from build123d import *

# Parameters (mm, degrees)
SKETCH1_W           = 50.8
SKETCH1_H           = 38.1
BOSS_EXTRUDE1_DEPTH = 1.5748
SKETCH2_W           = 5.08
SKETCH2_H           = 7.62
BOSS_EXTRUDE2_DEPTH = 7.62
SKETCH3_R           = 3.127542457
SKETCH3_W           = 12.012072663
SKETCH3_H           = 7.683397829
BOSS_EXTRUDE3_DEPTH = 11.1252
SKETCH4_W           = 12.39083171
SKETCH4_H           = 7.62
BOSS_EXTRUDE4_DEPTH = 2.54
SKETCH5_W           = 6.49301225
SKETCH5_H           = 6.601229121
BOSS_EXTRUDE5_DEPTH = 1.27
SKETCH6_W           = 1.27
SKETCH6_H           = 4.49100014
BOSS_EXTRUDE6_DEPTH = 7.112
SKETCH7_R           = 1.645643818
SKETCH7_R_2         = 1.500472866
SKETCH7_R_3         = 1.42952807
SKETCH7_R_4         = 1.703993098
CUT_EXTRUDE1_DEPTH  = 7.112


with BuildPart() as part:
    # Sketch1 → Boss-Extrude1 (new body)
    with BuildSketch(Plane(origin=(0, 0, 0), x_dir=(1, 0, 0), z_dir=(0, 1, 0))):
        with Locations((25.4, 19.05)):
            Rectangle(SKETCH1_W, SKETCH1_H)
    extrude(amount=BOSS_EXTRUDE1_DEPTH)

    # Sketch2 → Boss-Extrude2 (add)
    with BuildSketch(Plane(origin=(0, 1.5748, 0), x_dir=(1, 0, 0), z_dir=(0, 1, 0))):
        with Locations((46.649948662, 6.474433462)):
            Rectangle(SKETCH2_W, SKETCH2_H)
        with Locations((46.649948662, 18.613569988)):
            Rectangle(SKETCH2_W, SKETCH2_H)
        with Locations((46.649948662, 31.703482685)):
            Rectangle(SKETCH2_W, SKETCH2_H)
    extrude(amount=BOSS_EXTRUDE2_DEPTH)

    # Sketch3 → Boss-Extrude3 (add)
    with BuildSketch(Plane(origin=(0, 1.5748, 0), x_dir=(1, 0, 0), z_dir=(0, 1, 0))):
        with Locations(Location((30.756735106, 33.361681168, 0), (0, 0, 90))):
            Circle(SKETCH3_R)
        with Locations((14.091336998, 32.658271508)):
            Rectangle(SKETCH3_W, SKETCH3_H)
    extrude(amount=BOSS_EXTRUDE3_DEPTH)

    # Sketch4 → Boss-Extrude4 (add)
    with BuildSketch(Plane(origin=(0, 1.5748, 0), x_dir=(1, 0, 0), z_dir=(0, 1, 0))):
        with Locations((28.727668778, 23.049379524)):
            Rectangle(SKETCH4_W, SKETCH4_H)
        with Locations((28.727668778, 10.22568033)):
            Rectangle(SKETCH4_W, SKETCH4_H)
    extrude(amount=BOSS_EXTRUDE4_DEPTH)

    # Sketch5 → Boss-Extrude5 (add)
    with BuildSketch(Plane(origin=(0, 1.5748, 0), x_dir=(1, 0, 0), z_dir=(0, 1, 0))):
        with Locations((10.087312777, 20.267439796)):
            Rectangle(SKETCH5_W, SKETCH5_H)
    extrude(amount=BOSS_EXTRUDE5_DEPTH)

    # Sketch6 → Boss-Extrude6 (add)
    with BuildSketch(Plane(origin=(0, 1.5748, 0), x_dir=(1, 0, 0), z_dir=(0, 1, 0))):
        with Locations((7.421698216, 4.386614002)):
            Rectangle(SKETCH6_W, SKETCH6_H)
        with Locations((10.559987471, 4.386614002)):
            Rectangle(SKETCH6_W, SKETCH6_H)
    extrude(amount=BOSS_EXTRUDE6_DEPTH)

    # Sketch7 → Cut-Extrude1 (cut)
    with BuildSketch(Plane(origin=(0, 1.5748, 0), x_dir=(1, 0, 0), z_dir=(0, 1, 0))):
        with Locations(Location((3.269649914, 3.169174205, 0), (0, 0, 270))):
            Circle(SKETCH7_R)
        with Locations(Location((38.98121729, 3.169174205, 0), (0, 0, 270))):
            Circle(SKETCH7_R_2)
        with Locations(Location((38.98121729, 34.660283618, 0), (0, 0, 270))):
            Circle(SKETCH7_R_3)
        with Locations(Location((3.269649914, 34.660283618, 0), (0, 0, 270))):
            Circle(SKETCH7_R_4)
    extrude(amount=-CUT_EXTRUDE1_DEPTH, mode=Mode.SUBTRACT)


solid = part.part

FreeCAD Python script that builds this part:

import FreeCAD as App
import Part
import Sketcher
Q = App.Units.Quantity

doc = App.newDocument("Part")
body = doc.addObject("PartDesign::Body", "Body")

sketch1 = doc.addObject("Sketcher::SketchObject", "Sketch")
body.addObject(sketch1)
sketch1.AttachmentSupport = (doc.XZ_Plane, [""])
sketch1.MapMode = "FlatFace"
sketch1.addGeometry(Part.LineSegment(App.Vector(0, -38.1, 0), App.Vector(0, 0, 0)), False)
sketch1.addGeometry(Part.LineSegment(App.Vector(0, 0, 0), App.Vector(50.8, 0, 0)), False)
sketch1.addGeometry(Part.LineSegment(App.Vector(50.8, 0, 0), App.Vector(50.8, -38.1, 0)), False)
sketch1.addGeometry(Part.LineSegment(App.Vector(50.8, -38.1, 0), App.Vector(0, -38.1, 0)), False)
sketch1.addConstraint(Sketcher.Constraint("Coincident", 0, 2, 1, 1))
sketch1.addConstraint(Sketcher.Constraint("Coincident", 1, 2, 2, 1))
sketch1.addConstraint(Sketcher.Constraint("Coincident", 2, 2, 3, 1))
sketch1.addConstraint(Sketcher.Constraint("Coincident", 3, 2, 0, 1))
sketch1.addConstraint(Sketcher.Constraint("Vertical", 0))
sketch1.addConstraint(Sketcher.Constraint("Horizontal", 1))
sketch1.addConstraint(Sketcher.Constraint("Vertical", 2))
sketch1.addConstraint(Sketcher.Constraint("Horizontal", 3))
sketch1.addConstraint(Sketcher.Constraint("Coincident", 0, 2, -1, 1))
sketch1.addConstraint(Sketcher.Constraint("DistanceX", 1, 1, 1, 2, Q("2 in")))
sketch1.addConstraint(Sketcher.Constraint("DistanceY", 0, 1, 0, 2, Q("1.5 in")))
pad1 = doc.addObject("PartDesign::Pad", "Pad")
body.addObject(pad1)
pad1.Profile = sketch1
pad1.Length = Q("0.062 in")
pad1.Reversed = True

sketch2 = doc.addObject("Sketcher::SketchObject", "Sketch001")
body.addObject(sketch2)
sketch2.AttachmentSupport = (doc.XZ_Plane, [""])
sketch2.MapMode = "FlatFace"
sketch2.AttachmentOffset = App.Placement(App.Vector(0, 0, -0.062 * 25.4), App.Rotation())
sketch2.addGeometry(Part.LineSegment(App.Vector(44.109949, -10.284433, 0), App.Vector(44.109949, -2.664433, 0)), False)
sketch2.addGeometry(Part.LineSegment(App.Vector(44.109949, -2.664433, 0), App.Vector(49.189949, -2.664433, 0)), False)
sketch2.addGeometry(Part.LineSegment(App.Vector(49.189949, -2.664433, 0), App.Vector(49.189949, -10.284433, 0)), False)
sketch2.addGeometry(Part.LineSegment(App.Vector(49.189949, -10.284433, 0), App.Vector(44.109949, -10.284433, 0)), False)
sketch2.addGeometry(Part.LineSegment(App.Vector(44.109949, -22.42357, 0), App.Vector(44.109949, -14.80357, 0)), False)
sketch2.addGeometry(Part.LineSegment(App.Vector(44.109949, -14.80357, 0), App.Vector(49.189949, -14.80357, 0)), False)
sketch2.addGeometry(Part.LineSegment(App.Vector(49.189949, -14.80357, 0), App.Vector(49.189949, -22.42357, 0)), False)
sketch2.addGeometry(Part.LineSegment(App.Vector(49.189949, -22.42357, 0), App.Vector(44.109949, -22.42357, 0)), False)
sketch2.addGeometry(Part.LineSegment(App.Vector(44.109949, -35.513483, 0), App.Vector(44.109949, -27.893483, 0)), False)
sketch2.addGeometry(Part.LineSegment(App.Vector(44.109949, -27.893483, 0), App.Vector(49.189949, -27.893483, 0)), False)
sketch2.addGeometry(Part.LineSegment(App.Vector(49.189949, -27.893483, 0), App.Vector(49.189949, -35.513483, 0)), False)
sketch2.addGeometry(Part.LineSegment(App.Vector(49.189949, -35.513483, 0), App.Vector(44.109949, -35.513483, 0)), False)
sketch2.addConstraint(Sketcher.Constraint("Coincident", 0, 2, 1, 1))
sketch2.addConstraint(Sketcher.Constraint("Coincident", 1, 2, 2, 1))
sketch2.addConstraint(Sketcher.Constraint("Coincident", 2, 2, 3, 1))
sketch2.addConstraint(Sketcher.Constraint("Coincident", 3, 2, 0, 1))
sketch2.addConstraint(Sketcher.Constraint("Coincident", 4, 2, 5, 1))
sketch2.addConstraint(Sketcher.Constraint("Coincident", 5, 2, 6, 1))
sketch2.addConstraint(Sketcher.Constraint("Coincident", 6, 2, 7, 1))
sketch2.addConstraint(Sketcher.Constraint("Coincident", 7, 2, 4, 1))
sketch2.addConstraint(Sketcher.Constraint("Coincident", 8, 2, 9, 1))
sketch2.addConstraint(Sketcher.Constraint("Coincident", 9, 2, 10, 1))
sketch2.addConstraint(Sketcher.Constraint("Coincident", 10, 2, 11, 1))
sketch2.addConstraint(Sketcher.Constraint("Coincident", 11, 2, 8, 1))
sketch2.addConstraint(Sketcher.Constraint("Vertical", 0))
sketch2.addConstraint(Sketcher.Constraint("Horizontal", 1))
sketch2.addConstraint(Sketcher.Constraint("Vertical", 2))
sketch2.addConstraint(Sketcher.Constraint("Horizontal", 3))
sketch2.addConstraint(Sketcher.Constraint("Vertical", 4))
sketch2.addConstraint(Sketcher.Constraint("Horizontal", 5))
sketch2.addConstraint(Sketcher.Constraint("Vertical", 6))
sketch2.addConstraint(Sketcher.Constraint("Horizontal", 7))
sketch2.addConstraint(Sketcher.Constraint("Vertical", 8))
sketch2.addConstraint(Sketcher.Constraint("Horizontal", 9))
sketch2.addConstraint(Sketcher.Constraint("Vertical", 10))
sketch2.addConstraint(Sketcher.Constraint("Horizontal", 11))
sketch2.addConstraint(Sketcher.Constraint("Vertical", 3, 2, 4, 2))
sketch2.addConstraint(Sketcher.Constraint("Vertical", 2, 2, 5, 2))
sketch2.addConstraint(Sketcher.Constraint("Vertical", 7, 2, 8, 2))
sketch2.addConstraint(Sketcher.Constraint("Vertical", 6, 2, 9, 2))
sketch2.addConstraint(Sketcher.Constraint("Equal", 2, 4))
sketch2.addConstraint(Sketcher.Constraint("Equal", 6, 8))
sketch2.addConstraint(Sketcher.Constraint("DistanceX", 1, 1, 1, 2, Q("0.2 in")))
sketch2.addConstraint(Sketcher.Constraint("DistanceY", 0, 1, 0, 2, Q("0.3 in")))
sketch2.addConstraint(Sketcher.Constraint("DistanceX", -1, 1, 0, 2, 44.109949))
sketch2.addConstraint(Sketcher.Constraint("DistanceY", 4, 2, -1, 1, 14.80357))
sketch2.addConstraint(Sketcher.Constraint("DistanceY", 8, 2, 3, 2, 17.609049))
sketch2.addConstraint(Sketcher.Constraint("DistanceY", 0, 2, -1, 1, 2.664433))
pad2 = doc.addObject("PartDesign::Pad", "Pad001")
body.addObject(pad2)
pad2.Profile = sketch2
pad2.Length = Q("0.3 in")
pad2.Reversed = True

sketch3 = doc.addObject("Sketcher::SketchObject", "Sketch002")
body.addObject(sketch3)
sketch3.AttachmentSupport = (doc.XZ_Plane, [""])
sketch3.MapMode = "FlatFace"
sketch3.AttachmentOffset = App.Placement(App.Vector(0, 0, -0.062 * 25.4), App.Rotation())
sketch3.addGeometry(Part.Circle(App.Vector(30.756735, -33.361681, 0), App.Vector(0, 0, 1), 3.127542), False)
sketch3.addGeometry(Part.LineSegment(App.Vector(8.085301, -36.49997, 0), App.Vector(8.085301, -28.816573, 0)), False)
sketch3.addGeometry(Part.LineSegment(App.Vector(8.085301, -28.816573, 0), App.Vector(20.097373, -28.816573, 0)), False)
sketch3.addGeometry(Part.LineSegment(App.Vector(20.097373, -28.816573, 0), App.Vector(20.097373, -36.49997, 0)), False)
sketch3.addGeometry(Part.LineSegment(App.Vector(20.097373, -36.49997, 0), App.Vector(8.085301, -36.49997, 0)), False)
sketch3.addConstraint(Sketcher.Constraint("Coincident", 1, 2, 2, 1))
sketch3.addConstraint(Sketcher.Constraint("Coincident", 2, 2, 3, 1))
sketch3.addConstraint(Sketcher.Constraint("Coincident", 3, 2, 4, 1))
sketch3.addConstraint(Sketcher.Constraint("Coincident", 4, 2, 1, 1))
sketch3.addConstraint(Sketcher.Constraint("Vertical", 1))
sketch3.addConstraint(Sketcher.Constraint("Horizontal", 2))
sketch3.addConstraint(Sketcher.Constraint("Vertical", 3))
sketch3.addConstraint(Sketcher.Constraint("Horizontal", 4))
sketch3.addConstraint(Sketcher.Constraint("Diameter", 0, 6.255085))
sketch3.addConstraint(Sketcher.Constraint("DistanceX", -1, 1, 1, 2, 8.085301))
sketch3.addConstraint(Sketcher.Constraint("DistanceX", 2, 1, 2, 2, 12.012073))
sketch3.addConstraint(Sketcher.Constraint("DistanceY", 1, 1, 1, 2, 7.683398))
sketch3.addConstraint(Sketcher.Constraint("DistanceY", 0, 3, -1, 1, 33.361681))
sketch3.addConstraint(Sketcher.Constraint("DistanceY", 3, 2, -1, 1, 36.49997))
sketch3.addConstraint(Sketcher.Constraint("DistanceX", 2, 2, 0, 3, 10.659362))
pad3 = doc.addObject("PartDesign::Pad", "Pad002")
body.addObject(pad3)
pad3.Profile = sketch3
pad3.Length = Q("0.438 in")
pad3.Reversed = True

sketch4 = doc.addObject("Sketcher::SketchObject", "Sketch003")
body.addObject(sketch4)
sketch4.AttachmentSupport = (doc.XZ_Plane, [""])
sketch4.MapMode = "FlatFace"
sketch4.AttachmentOffset = App.Placement(App.Vector(0, 0, -0.062 * 25.4), App.Rotation())
sketch4.addGeometry(Part.LineSegment(App.Vector(22.532253, -26.85938, 0), App.Vector(22.532253, -19.23938, 0)), False)
sketch4.addGeometry(Part.LineSegment(App.Vector(22.532253, -19.23938, 0), App.Vector(34.923085, -19.23938, 0)), False)
sketch4.addGeometry(Part.LineSegment(App.Vector(34.923085, -19.23938, 0), App.Vector(34.923085, -26.85938, 0)), False)
sketch4.addGeometry(Part.LineSegment(App.Vector(34.923085, -26.85938, 0), App.Vector(22.532253, -26.85938, 0)), False)
sketch4.addGeometry(Part.LineSegment(App.Vector(22.532253, -14.03568, 0), App.Vector(22.532253, -6.41568, 0)), False)
sketch4.addGeometry(Part.LineSegment(App.Vector(22.532253, -6.41568, 0), App.Vector(34.923085, -6.41568, 0)), False)
sketch4.addGeometry(Part.LineSegment(App.Vector(34.923085, -6.41568, 0), App.Vector(34.923085, -14.03568, 0)), False)
sketch4.addGeometry(Part.LineSegment(App.Vector(34.923085, -14.03568, 0), App.Vector(22.532253, -14.03568, 0)), False)
sketch4.addConstraint(Sketcher.Constraint("Coincident", 0, 2, 1, 1))
sketch4.addConstraint(Sketcher.Constraint("Coincident", 1, 2, 2, 1))
sketch4.addConstraint(Sketcher.Constraint("Coincident", 2, 2, 3, 1))
sketch4.addConstraint(Sketcher.Constraint("Coincident", 3, 2, 0, 1))
sketch4.addConstraint(Sketcher.Constraint("Coincident", 4, 2, 5, 1))
sketch4.addConstraint(Sketcher.Constraint("Coincident", 5, 2, 6, 1))
sketch4.addConstraint(Sketcher.Constraint("Coincident", 6, 2, 7, 1))
sketch4.addConstraint(Sketcher.Constraint("Coincident", 7, 2, 4, 1))
sketch4.addConstraint(Sketcher.Constraint("Vertical", 0))
sketch4.addConstraint(Sketcher.Constraint("Horizontal", 1))
sketch4.addConstraint(Sketcher.Constraint("Vertical", 2))
sketch4.addConstraint(Sketcher.Constraint("Horizontal", 3))
sketch4.addConstraint(Sketcher.Constraint("Vertical", 4))
sketch4.addConstraint(Sketcher.Constraint("Horizontal", 5))
sketch4.addConstraint(Sketcher.Constraint("Vertical", 6))
sketch4.addConstraint(Sketcher.Constraint("Horizontal", 7))
sketch4.addConstraint(Sketcher.Constraint("Vertical", 3, 2, 4, 2))
sketch4.addConstraint(Sketcher.Constraint("Vertical", 2, 2, 5, 2))
sketch4.addConstraint(Sketcher.Constraint("Equal", 2, 4))
sketch4.addConstraint(Sketcher.Constraint("DistanceY", 0, 1, 0, 2, Q("0.3 in")))
sketch4.addConstraint(Sketcher.Constraint("DistanceX", 1, 1, 1, 2, 12.390832))
sketch4.addConstraint(Sketcher.Constraint("DistanceY", 0, 2, 4, 2, 12.823699))
sketch4.addConstraint(Sketcher.Constraint("DistanceY", 0, 2, -1, 1, 19.23938))
sketch4.addConstraint(Sketcher.Constraint("DistanceX", -1, 1, 0, 2, 22.532253))
pad4 = doc.addObject("PartDesign::Pad", "Pad003")
body.addObject(pad4)
pad4.Profile = sketch4
pad4.Length = Q("0.1 in")
pad4.Reversed = True

sketch5 = doc.addObject("Sketcher::SketchObject", "Sketch004")
body.addObject(sketch5)
sketch5.AttachmentSupport = (doc.XZ_Plane, [""])
sketch5.MapMode = "FlatFace"
sketch5.AttachmentOffset = App.Placement(App.Vector(0, 0, -0.062 * 25.4), App.Rotation())
sketch5.addGeometry(Part.LineSegment(App.Vector(6.840807, -23.568054, 0), App.Vector(6.840807, -16.966825, 0)), False)
sketch5.addGeometry(Part.LineSegment(App.Vector(6.840807, -16.966825, 0), App.Vector(13.333819, -16.966825, 0)), False)
sketch5.addGeometry(Part.LineSegment(App.Vector(13.333819, -16.966825, 0), App.Vector(13.333819, -23.568054, 0)), False)
sketch5.addGeometry(Part.LineSegment(App.Vector(13.333819, -23.568054, 0), App.Vector(6.840807, -23.568054, 0)), False)
sketch5.addConstraint(Sketcher.Constraint("Coincident", 0, 2, 1, 1))
sketch5.addConstraint(Sketcher.Constraint("Coincident", 1, 2, 2, 1))
sketch5.addConstraint(Sketcher.Constraint("Coincident", 2, 2, 3, 1))
sketch5.addConstraint(Sketcher.Constraint("Coincident", 3, 2, 0, 1))
sketch5.addConstraint(Sketcher.Constraint("Vertical", 0))
sketch5.addConstraint(Sketcher.Constraint("Horizontal", 1))
sketch5.addConstraint(Sketcher.Constraint("Vertical", 2))
sketch5.addConstraint(Sketcher.Constraint("Horizontal", 3))
sketch5.addConstraint(Sketcher.Constraint("DistanceY", 0, 1, 0, 2, 6.601229))
sketch5.addConstraint(Sketcher.Constraint("DistanceX", 1, 1, 1, 2, 6.493012))
sketch5.addConstraint(Sketcher.Constraint("DistanceX", -1, 1, 1, 2, 13.333819))
sketch5.addConstraint(Sketcher.Constraint("DistanceY", 0, 2, -1, 1, 16.966825))
pad5 = doc.addObject("PartDesign::Pad", "Pad004")
body.addObject(pad5)
pad5.Profile = sketch5
pad5.Length = Q("0.05 in")
pad5.Reversed = True

sketch6 = doc.addObject("Sketcher::SketchObject", "Sketch005")
body.addObject(sketch6)
sketch6.AttachmentSupport = (doc.XZ_Plane, [""])
sketch6.MapMode = "FlatFace"
sketch6.AttachmentOffset = App.Placement(App.Vector(0, 0, -0.062 * 25.4), App.Rotation())
sketch6.addGeometry(Part.LineSegment(App.Vector(6.786698, -6.632114, 0), App.Vector(6.786698, -2.141114, 0)), False)
sketch6.addGeometry(Part.LineSegment(App.Vector(6.786698, -2.141114, 0), App.Vector(8.056698, -2.141114, 0)), False)
sketch6.addGeometry(Part.LineSegment(App.Vector(8.056698, -2.141114, 0), App.Vector(8.056698, -6.632114, 0)), False)
sketch6.addGeometry(Part.LineSegment(App.Vector(8.056698, -6.632114, 0), App.Vector(6.786698, -6.632114, 0)), False)
sketch6.addGeometry(Part.LineSegment(App.Vector(9.924987, -6.632114, 0), App.Vector(9.924987, -2.141114, 0)), False)
sketch6.addGeometry(Part.LineSegment(App.Vector(9.924987, -2.141114, 0), App.Vector(11.194987, -2.141114, 0)), False)
sketch6.addGeometry(Part.LineSegment(App.Vector(11.194987, -2.141114, 0), App.Vector(11.194987, -6.632114, 0)), False)
sketch6.addGeometry(Part.LineSegment(App.Vector(11.194987, -6.632114, 0), App.Vector(9.924987, -6.632114, 0)), False)
sketch6.addConstraint(Sketcher.Constraint("Coincident", 0, 2, 1, 1))
sketch6.addConstraint(Sketcher.Constraint("Coincident", 1, 2, 2, 1))
sketch6.addConstraint(Sketcher.Constraint("Coincident", 2, 2, 3, 1))
sketch6.addConstraint(Sketcher.Constraint("Coincident", 3, 2, 0, 1))
sketch6.addConstraint(Sketcher.Constraint("Coincident", 4, 2, 5, 1))
sketch6.addConstraint(Sketcher.Constraint("Coincident", 5, 2, 6, 1))
sketch6.addConstraint(Sketcher.Constraint("Coincident", 6, 2, 7, 1))
sketch6.addConstraint(Sketcher.Constraint("Coincident", 7, 2, 4, 1))
sketch6.addConstraint(Sketcher.Constraint("Vertical", 0))
sketch6.addConstraint(Sketcher.Constraint("Horizontal", 1))
sketch6.addConstraint(Sketcher.Constraint("Vertical", 2))
sketch6.addConstraint(Sketcher.Constraint("Horizontal", 3))
sketch6.addConstraint(Sketcher.Constraint("Vertical", 4))
sketch6.addConstraint(Sketcher.Constraint("Horizontal", 5))
sketch6.addConstraint(Sketcher.Constraint("Vertical", 6))
sketch6.addConstraint(Sketcher.Constraint("Horizontal", 7))
sketch6.addConstraint(Sketcher.Constraint("Horizontal", 1, 2, 4, 2))
sketch6.addConstraint(Sketcher.Constraint("Horizontal", 3, 2, 6, 2))
sketch6.addConstraint(Sketcher.Constraint("Equal", 3, 5))
sketch6.addConstraint(Sketcher.Constraint("DistanceX", 1, 1, 1, 2, Q("0.05 in")))
sketch6.addConstraint(Sketcher.Constraint("DistanceY", 0, 1, 0, 2, 4.491))
sketch6.addConstraint(Sketcher.Constraint("DistanceX", -1, 1, 0, 2, 6.786698))
sketch6.addConstraint(Sketcher.Constraint("DistanceX", 1, 2, 4, 2, 1.868289))
sketch6.addConstraint(Sketcher.Constraint("DistanceY", 0, 2, -1, 1, 2.141114))
pad6 = doc.addObject("PartDesign::Pad", "Pad005")
body.addObject(pad6)
pad6.Profile = sketch6
pad6.Length = Q("0.28 in")
pad6.Reversed = True

sketch7 = doc.addObject("Sketcher::SketchObject", "Sketch006")
body.addObject(sketch7)
sketch7.AttachmentSupport = (doc.XZ_Plane, [""])
sketch7.MapMode = "FlatFace"
sketch7.AttachmentOffset = App.Placement(App.Vector(0, 0, -0.062 * 25.4), App.Rotation())
sketch7.addGeometry(Part.Circle(App.Vector(3.26965, -3.169174, 0), App.Vector(0, 0, 1), 1.645644), False)
sketch7.addGeometry(Part.Circle(App.Vector(38.981217, -3.169174, 0), App.Vector(0, 0, 1), 1.500473), False)
sketch7.addGeometry(Part.Circle(App.Vector(38.981217, -34.660284, 0), App.Vector(0, 0, 1), 1.429528), False)
sketch7.addGeometry(Part.Circle(App.Vector(3.26965, -34.660284, 0), App.Vector(0, 0, 1), 1.703993), False)
sketch7.addConstraint(Sketcher.Constraint("Horizontal", 0, 3, 1, 3))
sketch7.addConstraint(Sketcher.Constraint("Horizontal", 2, 3, 3, 3))
sketch7.addConstraint(Sketcher.Constraint("Vertical", 1, 3, 2, 3))
sketch7.addConstraint(Sketcher.Constraint("Vertical", 0, 3, 3, 3))
sketch7.addConstraint(Sketcher.Constraint("Diameter", 0, 3.291288))
sketch7.addConstraint(Sketcher.Constraint("Diameter", 1, 3.000946))
sketch7.addConstraint(Sketcher.Constraint("Diameter", 2, 2.859056))
sketch7.addConstraint(Sketcher.Constraint("Diameter", 3, 3.407986))
sketch7.addConstraint(Sketcher.Constraint("DistanceX", -1, 1, 0, 3, 3.26965))
sketch7.addConstraint(Sketcher.Constraint("DistanceY", 2, 3, 1, 3, 31.491109))
sketch7.addConstraint(Sketcher.Constraint("DistanceY", 0, 3, -1, 1, 3.169174))
sketch7.addConstraint(Sketcher.Constraint("DistanceX", -1, 1, 1, 3, 38.981217))
pocket1 = doc.addObject("PartDesign::Pocket", "Pocket")
body.addObject(pocket1)
pocket1.Profile = sketch7
pocket1.Length = Q("0.28 in")
pocket1.Reversed = True

doc.recompute()
